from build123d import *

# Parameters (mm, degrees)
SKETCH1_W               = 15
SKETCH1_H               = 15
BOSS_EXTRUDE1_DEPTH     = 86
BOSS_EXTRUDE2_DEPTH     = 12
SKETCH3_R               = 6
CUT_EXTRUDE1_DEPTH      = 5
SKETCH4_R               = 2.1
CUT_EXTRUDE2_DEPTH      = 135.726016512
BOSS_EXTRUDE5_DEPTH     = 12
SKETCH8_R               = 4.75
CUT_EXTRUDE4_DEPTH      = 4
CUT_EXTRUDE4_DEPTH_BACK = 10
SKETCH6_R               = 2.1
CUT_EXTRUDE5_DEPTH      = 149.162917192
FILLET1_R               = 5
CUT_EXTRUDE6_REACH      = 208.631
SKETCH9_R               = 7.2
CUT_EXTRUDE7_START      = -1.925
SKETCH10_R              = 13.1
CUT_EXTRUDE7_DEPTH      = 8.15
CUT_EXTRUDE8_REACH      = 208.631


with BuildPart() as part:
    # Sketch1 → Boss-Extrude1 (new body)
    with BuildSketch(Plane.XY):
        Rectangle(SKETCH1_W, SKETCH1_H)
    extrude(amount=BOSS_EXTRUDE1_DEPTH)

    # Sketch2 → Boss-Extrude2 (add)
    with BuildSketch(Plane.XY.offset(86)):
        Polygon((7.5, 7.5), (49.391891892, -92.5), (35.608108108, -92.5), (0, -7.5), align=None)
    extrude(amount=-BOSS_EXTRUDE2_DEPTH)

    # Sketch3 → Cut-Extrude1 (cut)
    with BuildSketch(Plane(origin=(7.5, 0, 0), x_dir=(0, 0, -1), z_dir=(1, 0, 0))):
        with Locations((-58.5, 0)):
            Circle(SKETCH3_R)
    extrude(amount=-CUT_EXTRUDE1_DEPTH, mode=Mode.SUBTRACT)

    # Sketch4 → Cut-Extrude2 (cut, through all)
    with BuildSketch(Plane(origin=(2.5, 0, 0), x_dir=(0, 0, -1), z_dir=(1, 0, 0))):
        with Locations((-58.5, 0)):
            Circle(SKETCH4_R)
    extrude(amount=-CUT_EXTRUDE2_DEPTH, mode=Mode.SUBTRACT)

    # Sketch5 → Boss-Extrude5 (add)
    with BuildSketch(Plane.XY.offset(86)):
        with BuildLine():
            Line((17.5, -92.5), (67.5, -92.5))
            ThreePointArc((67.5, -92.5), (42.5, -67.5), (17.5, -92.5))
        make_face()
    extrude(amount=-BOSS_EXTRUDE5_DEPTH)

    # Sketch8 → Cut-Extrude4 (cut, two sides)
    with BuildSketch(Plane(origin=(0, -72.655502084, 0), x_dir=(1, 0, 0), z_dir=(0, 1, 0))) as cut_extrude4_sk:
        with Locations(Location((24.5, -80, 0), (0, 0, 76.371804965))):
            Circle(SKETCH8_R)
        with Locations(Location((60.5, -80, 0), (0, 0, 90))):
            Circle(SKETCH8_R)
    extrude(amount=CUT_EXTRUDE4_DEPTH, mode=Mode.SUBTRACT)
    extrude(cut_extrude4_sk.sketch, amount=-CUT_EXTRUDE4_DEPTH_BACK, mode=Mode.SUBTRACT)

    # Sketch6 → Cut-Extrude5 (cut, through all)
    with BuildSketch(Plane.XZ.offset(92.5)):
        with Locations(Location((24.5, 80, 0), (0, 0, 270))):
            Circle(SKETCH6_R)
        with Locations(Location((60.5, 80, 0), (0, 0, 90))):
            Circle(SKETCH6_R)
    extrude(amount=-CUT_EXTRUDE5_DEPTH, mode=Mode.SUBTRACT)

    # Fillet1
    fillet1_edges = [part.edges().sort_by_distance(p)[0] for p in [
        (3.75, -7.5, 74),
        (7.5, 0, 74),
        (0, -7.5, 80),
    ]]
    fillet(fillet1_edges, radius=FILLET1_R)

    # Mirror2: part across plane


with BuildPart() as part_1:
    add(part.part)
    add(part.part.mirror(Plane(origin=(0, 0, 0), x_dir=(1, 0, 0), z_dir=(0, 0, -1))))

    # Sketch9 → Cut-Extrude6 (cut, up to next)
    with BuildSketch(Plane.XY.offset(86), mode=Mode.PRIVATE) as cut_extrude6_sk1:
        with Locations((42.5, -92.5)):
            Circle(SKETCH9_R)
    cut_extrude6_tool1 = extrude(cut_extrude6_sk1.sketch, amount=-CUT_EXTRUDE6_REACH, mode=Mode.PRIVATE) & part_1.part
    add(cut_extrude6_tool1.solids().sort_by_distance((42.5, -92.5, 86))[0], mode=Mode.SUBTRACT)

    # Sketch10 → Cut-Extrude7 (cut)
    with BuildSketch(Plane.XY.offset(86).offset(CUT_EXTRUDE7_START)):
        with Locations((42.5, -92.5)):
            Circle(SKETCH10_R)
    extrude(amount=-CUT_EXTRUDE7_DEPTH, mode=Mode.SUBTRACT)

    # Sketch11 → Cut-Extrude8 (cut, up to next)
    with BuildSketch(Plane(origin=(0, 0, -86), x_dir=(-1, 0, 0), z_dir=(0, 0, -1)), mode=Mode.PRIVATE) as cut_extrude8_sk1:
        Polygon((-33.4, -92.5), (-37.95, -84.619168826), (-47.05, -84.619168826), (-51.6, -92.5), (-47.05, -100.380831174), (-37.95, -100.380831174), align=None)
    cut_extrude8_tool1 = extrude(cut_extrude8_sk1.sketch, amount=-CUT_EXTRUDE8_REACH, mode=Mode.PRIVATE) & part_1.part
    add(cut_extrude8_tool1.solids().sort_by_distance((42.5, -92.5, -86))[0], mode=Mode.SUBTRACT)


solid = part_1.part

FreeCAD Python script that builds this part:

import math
import FreeCAD as App
import Part
import Sketcher
from FreeCAD import Vector
Q = App.Units.Quantity


def edges_at(feature, points):
    """Names of the edges that pass closest to the given points."""
    edges = feature.Shape.Edges
    near = lambda p: min(range(len(edges)), key=lambda i: edges[i].distToShape(Part.Vertex(*p))[0])
    return sorted({f"Edge{near(p) + 1}" for p in points})


def add_polygon(sketch, points):
    """Adds a closed chain of lines whose ends are joined by coincident constraints."""
    first, n = sketch.GeometryCount, len(points)
    for a, b in zip(points, points[1:] + points[:1]):
        sketch.addGeometry(Part.LineSegment(App.Vector(*a, 0), App.Vector(*b, 0)), False)
    for i in range(n):
        sketch.addConstraint(Sketcher.Constraint("Coincident", first + i, 2, first + (i + 1) % n, 1))

doc = App.newDocument("Part")
body = doc.addObject("PartDesign::Body", "Body")

# Sketch on XY plane
sketch1 = body.newObject("Sketcher::SketchObject", "Sketch")
sketch1.AttachmentSupport = (doc.getObject("XY_Plane"), [""])
sketch1.MapMode = "FlatFace"
add_polygon(sketch1, [(-7.5, 7.5), (-7.5, -7.5), (7.5, -7.5), (7.5, 7.5)])  # lines 0-3
sketch1.addConstraint(Sketcher.Constraint("Vertical", 0))
sketch1.addConstraint(Sketcher.Constraint("Horizontal", 1))
sketch1.addConstraint(Sketcher.Constraint("Vertical", 2))
sketch1.addConstraint(Sketcher.Constraint("Horizontal", 3))
sketch1.addConstraint(Sketcher.Constraint("Symmetric", 0, 2, 2, 2, -1, 1))
sketch1.addConstraint(Sketcher.Constraint("Equal", 3, 0))
sketch1.addConstraint(Sketcher.Constraint("DistanceX", 1, 1, 1, 2, 15.0))
pad1 = body.newObject("PartDesign::Pad", "Pad")
pad1.Profile = sketch1
pad1.Length = 86

# Sketch on XY plane
sketch2 = body.newObject("Sketcher::SketchObject", "Sketch001")
sketch2.AttachmentSupport = (doc.getObject("XY_Plane"), [""])
sketch2.MapMode = "FlatFace"
sketch2.AttachmentOffset = App.Placement(Vector(0, 0, 86), App.Rotation())
add_polygon(sketch2, [(49.391892, -92.5), (7.5, 7.5), (0, -7.5), (35.608108, -92.5)])  # lines 0-3
sketch2.addConstraint(Sketcher.Constraint("Horizontal", 3))
sketch2.addConstraint(Sketcher.Constraint("PointOnObject", 1, 2, -2))
sketch2.addConstraint(Sketcher.Constraint("Parallel", 0, 2))
sketch2.addConstraint(Sketcher.Constraint("DistanceY", 1, 2, 0, 2, 15.0))
sketch2.addConstraint(Sketcher.Constraint("DistanceY", 2, 2, 1, 2, 85.0))
sketch2.addConstraint(Sketcher.Constraint("DistanceX", -1, 1, 0, 2, 7.5))
sketch2.addConstraint(Sketcher.Constraint("DistanceY", -1, 1, 0, 2, 7.5))
sketch2.addConstraint(Sketcher.Constraint("DistanceX", 3, 1, 3, 2, 13.783784))
pad2 = body.newObject("PartDesign::Pad", "Pad001")
pad2.Profile = sketch2
pad2.Length = 12
pad2.Reversed = True

# Sketch on YZ plane
sketch3 = body.newObject("Sketcher::SketchObject", "Sketch002")
sketch3.AttachmentSupport = (doc.getObject("YZ_Plane"), [""])
sketch3.MapMode = "FlatFace"
sketch3.AttachmentOffset = App.Placement(Vector(0, 0, 7.5), App.Rotation())
sketch3.addGeometry(Part.Circle(Vector(0, 58.5, 0), Vector(0, 0, 1), 6), False)
sketch3.addConstraint(Sketcher.Constraint("PointOnObject", 0, 3, -2))
sketch3.addConstraint(Sketcher.Constraint("Diameter", 0, 12.0))
sketch3.addConstraint(Sketcher.Constraint("DistanceY", -1, 1, 0, 3, 58.5))
pocket1 = body.newObject("PartDesign::Pocket", "Pocket")
pocket1.Profile = sketch3
pocket1.Length = 5

# Sketch on YZ plane
sketch4 = body.newObject("Sketcher::SketchObject", "Sketch003")
sketch4.AttachmentSupport = (doc.getObject("YZ_Plane"), [""])
sketch4.MapMode = "FlatFace"
sketch4.AttachmentOffset = App.Placement(Vector(0, 0, 2.5), App.Rotation())
sketch4.addGeometry(Part.Circle(Vector(0, 58.5, 0), Vector(0, 0, 1), 2.1), False)
sketch4.addConstraint(Sketcher.Constraint("PointOnObject", 0, 3, -2))
sketch4.addConstraint(Sketcher.Constraint("Diameter", 0, 4.2))
sketch4.addConstraint(Sketcher.Constraint("DistanceY", -1, 1, 0, 3, 58.5))
pocket2 = body.newObject("PartDesign::Pocket", "Pocket001")
pocket2.Profile = sketch4
pocket2.Type = "ThroughAll"

# Sketch on XY plane
sketch5 = body.newObject("Sketcher::SketchObject", "Sketch004")
sketch5.AttachmentSupport = (doc.getObject("XY_Plane"), [""])
sketch5.MapMode = "FlatFace"
sketch5.AttachmentOffset = App.Placement(Vector(0, 0, 86), App.Rotation())
sketch5.addGeometry(Part.LineSegment(Vector(17.5, -92.5, 0), Vector(67.5, -92.5, 0)), False)
sketch5.addGeometry(Part.ArcOfCircle(Part.Circle(Vector(42.5, -92.5, 0), Vector(0, 0, 1), 25), math.radians(0), math.radians(180)), False)
sketch5.addConstraint(Sketcher.Constraint("Coincident", 0, 1, 1, 2))
sketch5.addConstraint(Sketcher.Constraint("Coincident", 1, 1, 0, 2))
sketch5.addConstraint(Sketcher.Constraint("Horizontal", 0))
sketch5.addConstraint(Sketcher.Constraint("Horizontal", 1, 3, 0, 1))
sketch5.addConstraint(Sketcher.Constraint("Radius", 1, 25.0))
sketch5.addConstraint(Sketcher.Constraint("DistanceX", -1, 1, 1, 3, 42.5))
sketch5.addConstraint(Sketcher.Constraint("DistanceY", 1, 3, -1, 1, 92.5))
pad3 = body.newObject("PartDesign::Pad", "Pad002")
pad3.Profile = sketch5
pad3.Length = 12
pad3.Reversed = True

# Sketch on XZ plane
sketch6 = body.newObject("Sketcher::SketchObject", "Sketch005")
sketch6.AttachmentSupport = (doc.getObject("XZ_Plane"), [""])
sketch6.MapMode = "FlatFace"
sketch6.AttachmentOffset = App.Placement(Vector(0, 0, 72.655502), App.Rotation())
sketch6.addGeometry(Part.Circle(Vector(24.5, 80, 0), Vector(0, 0, 1), 4.75), False)
sketch6.addGeometry(Part.Circle(Vector(60.5, 80, 0), Vector(0, 0, 1), 4.75), False)
sketch6.addConstraint(Sketcher.Constraint("Equal", 0, 1))
sketch6.addConstraint(Sketcher.Constraint("Horizontal", 0, 3, 1, 3))
sketch6.addConstraint(Sketcher.Constraint("Diameter", 0, 9.5))
sketch6.addConstraint(Sketcher.Constraint("DistanceY", -1, 1, 0, 3, 80.0))
sketch6.addConstraint(Sketcher.Constraint("DistanceX", 0, 3, 1, 3, 36.0))
sketch6.addConstraint(Sketcher.Constraint("DistanceX", -1, 1, 0, 3, 24.5))
pocket3 = body.newObject("PartDesign::Pocket", "Pocket002")
pocket3.Profile = sketch6
pocket3.Type = "TwoLengths"
pocket3.Length = 4
pocket3.Length2 = 10

# Sketch on XZ plane
sketch7 = body.newObject("Sketcher::SketchObject", "Sketch006")
sketch7.AttachmentSupport = (doc.getObject("XZ_Plane"), [""])
sketch7.MapMode = "FlatFace"
sketch7.AttachmentOffset = App.Placement(Vector(0, 0, 92.5), App.Rotation())
sketch7.addGeometry(Part.Circle(Vector(24.5, 80, 0), Vector(0, 0, 1), 2.1), False)
sketch7.addGeometry(Part.Circle(Vector(60.5, 80, 0), Vector(0, 0, 1), 2.1), False)
sketch7.addConstraint(Sketcher.Constraint("Equal", 0, 1))
sketch7.addConstraint(Sketcher.Constraint("Horizontal", 0, 3, 1, 3))
sketch7.addConstraint(Sketcher.Constraint("Diameter", 0, 4.2))
sketch7.addConstraint(Sketcher.Constraint("DistanceY", -1, 1, 0, 3, 80.0))
sketch7.addConstraint(Sketcher.Constraint("DistanceX", 0, 3, 1, 3, 36.0))
sketch7.addConstraint(Sketcher.Constraint("DistanceX", -1, 1, 0, 3, 24.5))
pocket4 = body.newObject("PartDesign::Pocket", "Pocket003")
pocket4.Profile = sketch7
pocket4.Type = "ThroughAll"
doc.recompute()

fillet = body.newObject("PartDesign::Fillet", "Fillet")
fillet.Base = (pocket4, edges_at(pocket4, [(3.75, -7.5, 74), (7.5, 0, 74), (0, -7.5, 80)]))
fillet.Radius = 5
body2 = doc.addObject("PartDesign::Body", "Body001")
doc.recompute()

body2.BaseFeature = body
doc.recompute()

mirroring = doc.addObject("Part::Mirroring", "Mirroring")
mirroring.Source = body
mirroring.Base = Vector(0, 0, 0)
mirroring.Normal = Vector(0, 0, -1)
body3 = doc.addObject("PartDesign::Body", "Body002")
body3.BaseFeature = mirroring
boolean = body2.newObject("PartDesign::Boolean", "Boolean")
boolean.Type = "Fuse"
boolean.addObjects([body3])
doc.recompute()

# Sketch on XY plane
sketch8 = body2.newObject("Sketcher::SketchObject", "Sketch007")
sketch8.AttachmentSupport = (doc.getObject("XY_Plane001"), [""])
sketch8.MapMode = "FlatFace"
sketch8.AttachmentOffset = App.Placement(Vector(0, 0, 86), App.Rotation())
sketch8.addGeometry(Part.Circle(Vector(42.5, -92.5, 0), Vector(0, 0, 1), 7.2), False)
sketch8.addConstraint(Sketcher.Constraint("Diameter", 0, 14.4))
sketch8.addConstraint(Sketcher.Constraint("DistanceX", -1, 1, 0, 3, 42.5))
sketch8.addConstraint(Sketcher.Constraint("DistanceY", 0, 3, -1, 1, 92.5))
pocket5 = body2.newObject("PartDesign::Pocket", "Pocket004")
pocket5.Profile = sketch8
pocket5.Type = "UpToFirst"

# Sketch on XY plane
sketch9 = body2.newObject("Sketcher::SketchObject", "Sketch008")
sketch9.AttachmentSupport = (doc.getObject("XY_Plane001"), [""])
sketch9.MapMode = "FlatFace"
sketch9.AttachmentOffset = App.Placement(Vector(0, 0, 84.075), App.Rotation())
sketch9.addGeometry(Part.Circle(Vector(42.5, -92.5, 0), Vector(0, 0, 1), 13.1), False)
sketch9.addConstraint(Sketcher.Constraint("Diameter", 0, 26.2))
sketch9.addConstraint(Sketcher.Constraint("DistanceX", -1, 1, 0, 3, 42.5))
sketch9.addConstraint(Sketcher.Constraint("DistanceY", 0, 3, -1, 1, 92.5))
pocket6 = body2.newObject("PartDesign::Pocket", "Pocket005")
pocket6.Profile = sketch9
pocket6.Length = 8.15

# Sketch on XY plane
sketch10 = body2.newObject("Sketcher::SketchObject", "Sketch009")
sketch10.AttachmentSupport = (doc.getObject("XY_Plane001"), [""])
sketch10.MapMode = "FlatFace"
sketch10.AttachmentOffset = App.Placement(Vector(0, 0, -86), App.Rotation())
add_polygon(sketch10, [(33.4, -92.5), (37.95, -84.619169), (47.05, -84.619169), (51.6, -92.5), (47.05, -100.380831), (37.95, -100.380831)])  # lines 0-5
sketch10.addConstraint(Sketcher.Constraint("Horizontal", 1))
sketch10.addConstraint(Sketcher.Constraint("Horizontal", 4))
sketch10.addConstraint(Sketcher.Constraint("Parallel", 0, 3))
sketch10.addConstraint(Sketcher.Constraint("Parallel", 2, 5))
sketch10.addConstraint(Sketcher.Constraint("Horizontal", 2, 2, 5, 2))
sketch10.addConstraint(Sketcher.Constraint("Vertical", 1, 2, 3, 2))
sketch10.addConstraint(Sketcher.Constraint("Vertical", 0, 2, 4, 2))
sketch10.addConstraint(Sketcher.Constraint("Angle", 0, Q("60 deg")))
sketch10.addConstraint(Sketcher.Constraint("DistanceX", 1, 1, 1, 2, 9.1))
sketch10.addConstraint(Sketcher.Constraint("Distance", 0, 9.1))
sketch10.addConstraint(Sketcher.Constraint("DistanceX", -1, 1, 2, 2, 51.6))
sketch10.addConstraint(Sketcher.Constraint("DistanceY", 2, 2, -1, 1, 92.5))
pocket7 = body2.newObject("PartDesign::Pocket", "Pocket006")
pocket7.Profile = sketch10
pocket7.Type = "UpToFirst"
pocket7.Reversed = True
mirroring.Visibility = False

doc.recompute()
